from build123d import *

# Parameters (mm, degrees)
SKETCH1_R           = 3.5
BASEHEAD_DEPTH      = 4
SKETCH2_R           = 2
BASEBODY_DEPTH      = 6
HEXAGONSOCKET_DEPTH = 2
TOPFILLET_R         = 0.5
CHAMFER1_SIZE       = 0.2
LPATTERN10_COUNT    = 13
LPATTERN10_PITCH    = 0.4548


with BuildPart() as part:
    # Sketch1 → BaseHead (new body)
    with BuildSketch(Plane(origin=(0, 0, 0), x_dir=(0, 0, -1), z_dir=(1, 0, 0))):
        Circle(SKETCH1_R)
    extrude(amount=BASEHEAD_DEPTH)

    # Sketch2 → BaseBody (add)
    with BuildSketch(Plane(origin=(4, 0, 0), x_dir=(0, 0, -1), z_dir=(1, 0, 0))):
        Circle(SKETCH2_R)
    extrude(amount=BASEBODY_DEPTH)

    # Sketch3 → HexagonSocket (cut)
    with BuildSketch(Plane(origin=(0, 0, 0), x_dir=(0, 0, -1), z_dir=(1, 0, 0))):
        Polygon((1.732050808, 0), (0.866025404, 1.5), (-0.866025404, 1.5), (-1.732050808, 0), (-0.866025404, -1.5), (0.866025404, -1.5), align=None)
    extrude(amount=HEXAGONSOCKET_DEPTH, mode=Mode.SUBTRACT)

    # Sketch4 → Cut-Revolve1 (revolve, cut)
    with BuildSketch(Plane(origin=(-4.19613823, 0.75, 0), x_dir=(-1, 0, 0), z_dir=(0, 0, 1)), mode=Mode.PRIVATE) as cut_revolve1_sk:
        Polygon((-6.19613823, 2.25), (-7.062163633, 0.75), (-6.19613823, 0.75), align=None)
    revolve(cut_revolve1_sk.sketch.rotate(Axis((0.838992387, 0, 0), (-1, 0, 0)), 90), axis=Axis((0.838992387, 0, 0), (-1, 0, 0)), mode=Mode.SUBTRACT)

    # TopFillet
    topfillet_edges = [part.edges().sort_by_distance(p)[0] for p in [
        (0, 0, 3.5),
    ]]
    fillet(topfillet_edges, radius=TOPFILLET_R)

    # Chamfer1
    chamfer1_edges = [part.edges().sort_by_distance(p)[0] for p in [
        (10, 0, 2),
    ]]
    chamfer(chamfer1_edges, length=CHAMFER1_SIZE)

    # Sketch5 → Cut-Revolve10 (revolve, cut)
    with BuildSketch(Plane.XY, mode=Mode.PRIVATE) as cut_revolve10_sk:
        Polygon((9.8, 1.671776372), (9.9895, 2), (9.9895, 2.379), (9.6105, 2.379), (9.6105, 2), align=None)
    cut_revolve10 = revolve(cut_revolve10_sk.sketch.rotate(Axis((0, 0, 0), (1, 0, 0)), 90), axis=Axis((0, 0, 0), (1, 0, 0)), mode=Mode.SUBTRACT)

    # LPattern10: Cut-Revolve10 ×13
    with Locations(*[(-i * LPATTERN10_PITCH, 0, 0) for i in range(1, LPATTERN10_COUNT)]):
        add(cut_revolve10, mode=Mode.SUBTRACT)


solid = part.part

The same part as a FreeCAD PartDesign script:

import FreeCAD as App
import Part
import Sketcher
from FreeCAD import Vector
Q = App.Units.Quantity


def edges_at(feature, points):
    """Names of the edges that pass closest to the given points."""
    edges = feature.Shape.Edges
    near = lambda p: min(range(len(edges)), key=lambda i: edges[i].distToShape(Part.Vertex(*p))[0])
    return sorted({f"Edge{near(p) + 1}" for p in points})

doc = App.newDocument("Part")
body = doc.addObject("PartDesign::Body", "Body")

# Sketch on YZ plane
sketch1 = body.newObject("Sketcher::SketchObject", "Sketch")
sketch1.AttachmentSupport = (doc.getObject("YZ_Plane"), [""])
sketch1.MapMode = "FlatFace"
sketch1.addGeometry(Part.Circle(Vector(0, 0, 0), Vector(0, 0, 1), 3.5), False)
sketch1.addConstraint([
    Sketcher.Constraint("Coincident", 0, 3, -1, 1),
    Sketcher.Constraint("Diameter", 0, 7.0),
])
pad1 = body.newObject("PartDesign::Pad", "Pad")
pad1.Profile = sketch1
pad1.Length = 4

# Sketch on YZ plane
sketch2 = body.newObject("Sketcher::SketchObject", "Sketch001")
sketch2.AttachmentSupport = (doc.getObject("YZ_Plane"), [""])
sketch2.MapMode = "FlatFace"
sketch2.AttachmentOffset = App.Placement(Vector(0, 0, 4), App.Rotation())
sketch2.addGeometry(Part.Circle(Vector(0, 0, 0), Vector(0, 0, 1), 2), False)
sketch2.addConstraint([
    Sketcher.Constraint("Coincident", 0, 3, -1, 1),
    Sketcher.Constraint("Diameter", 0, 4.0),
])
pad2 = body.newObject("PartDesign::Pad", "Pad001")
pad2.Profile = sketch2
pad2.Length = 6

# Sketch on YZ plane
sketch3 = body.newObject("Sketcher::SketchObject", "Sketch002")
sketch3.AttachmentSupport = (doc.getObject("YZ_Plane"), [""])
sketch3.MapMode = "FlatFace"
sketch3.addGeometry([
    Part.LineSegment(Vector(0, -1.7, 0), Vector(1.5, -0.9, 0)),  # 0
    Part.LineSegment(Vector(1.5, -0.9, 0), Vector(1.5, 0.9, 0)),  # 1
    Part.LineSegment(Vector(1.5, 0.9, 0), Vector(0, 1.7, 0)),  # 2
    Part.LineSegment(Vector(0, 1.7, 0), Vector(-1.5, 0.9, 0)),  # 3
    Part.LineSegment(Vector(-1.5, 0.9, 0), Vector(-1.5, -0.9, 0)),  # 4
    Part.LineSegment(Vector(-1.5, -0.9, 0), Vector(0, -1.7, 0)),  # 5
], False)
sketch3.addConstraint([
    Sketcher.Constraint("Coincident", 0, 2, 1, 1),
    Sketcher.Constraint("Coincident", 1, 2, 2, 1),
    Sketcher.Constraint("Coincident", 2, 2, 3, 1),
    Sketcher.Constraint("Coincident", 3, 2, 4, 1),
    Sketcher.Constraint("Coincident", 4, 2, 5, 1),
    Sketcher.Constraint("Coincident", 5, 2, 0, 1),
    Sketcher.Constraint("Vertical", 1),
    Sketcher.Constraint("Vertical", 4),
    Sketcher.Constraint("Symmetric", 0, 2, 3, 2, -1, 1),
    Sketcher.Constraint("Symmetric", 2, 2, 5, 2, -1, 1),
    Sketcher.Constraint("PointOnObject", 2, 2, -2),
    Sketcher.Constraint("Parallel", 2, 5),
    Sketcher.Constraint("Horizontal", 1, 2, 3, 2),
    Sketcher.Constraint("Angle", 0, Q("30 deg")),
    Sketcher.Constraint("DistanceX", 3, 2, 1, 2, 3.0),
    Sketcher.Constraint("DistanceY", 1, 1, 1, 2, 1.732051),
])
pocket1 = body.newObject("PartDesign::Pocket", "Pocket")
pocket1.Profile = sketch3
pocket1.Length = 2
pocket1.Reversed = True

# Sketch on XY plane
sketch4 = body.newObject("Sketcher::SketchObject", "Sketch003")
sketch4.AttachmentSupport = (doc.getObject("XY_Plane"), [""])
sketch4.MapMode = "FlatFace"
sketch4.addGeometry([
    Part.LineSegment(Vector(2, -1.5, 0), Vector(2.9, 0, 0)),
    Part.LineSegment(Vector(2.9, 0, 0), Vector(2, 0, 0)),
    Part.LineSegment(Vector(2, 0, 0), Vector(2, -1.5, 0)),
], False)
sketch4.addConstraint([
    Sketcher.Constraint("Coincident", 0, 2, 1, 1),
    Sketcher.Constraint("Coincident", 1, 2, 2, 1),
    Sketcher.Constraint("Coincident", 2, 2, 0, 1),
    Sketcher.Constraint("Horizontal", 1),
    Sketcher.Constraint("Vertical", 2),
    Sketcher.Constraint("PointOnObject", 0, 2, -1),
    Sketcher.Constraint("Angle", 0, Q("60 deg")),
    Sketcher.Constraint("DistanceY", 2, 2, 2, 1, 1.5),
    Sketcher.Constraint("DistanceX", -1, 1, 1, 2, 2.0),
])
groove = body.newObject("PartDesign::Groove", "Groove")
groove.Profile = sketch4
groove.ReferenceAxis = (sketch4, ["H_Axis"])
groove.Angle = 360
doc.recompute()

fillet = body.newObject("PartDesign::Fillet", "Fillet")
fillet.Base = (groove, edges_at(groove, [(0, 0, 3.5)]))
fillet.Radius = 0.5
doc.recompute()

chamfer = body.newObject("PartDesign::Chamfer", "Chamfer")
chamfer.Base = (fillet, edges_at(fillet, [(10, 0, 2)]))
chamfer.Size = 0.2

# Sketch on XY plane
sketch5 = body.newObject("Sketcher::SketchObject", "Sketch004")
sketch5.AttachmentSupport = (doc.getObject("XY_Plane"), [""])
sketch5.MapMode = "FlatFace"
sketch5.addGeometry([
    Part.LineSegment(Vector(9.8, 1.67, 0), Vector(9.99, 2, 0)),  # 0
    Part.LineSegment(Vector(9.99, 2, 0), Vector(9.99, 2.38, 0)),  # 1
    Part.LineSegment(Vector(9.99, 2.38, 0), Vector(9.61, 2.38, 0)),  # 2
    Part.LineSegment(Vector(9.61, 2.38, 0), Vector(9.61, 2, 0)),  # 3
    Part.LineSegment(Vector(9.61, 2, 0), Vector(9.8, 1.67, 0)),  # 4
], False)
sketch5.addConstraint([
    Sketcher.Constraint("Coincident", 0, 2, 1, 1),
    Sketcher.Constraint("Coincident", 1, 2, 2, 1),
    Sketcher.Constraint("Coincident", 2, 2, 3, 1),
    Sketcher.Constraint("Coincident", 3, 2, 4, 1),
    Sketcher.Constraint("Coincident", 4, 2, 0, 1),
    Sketcher.Constraint("Vertical", 1),
    Sketcher.Constraint("Horizontal", 2),
    Sketcher.Constraint("Vertical", 3),
    Sketcher.Constraint("Horizontal", 0, 2, 3, 2),
    Sketcher.Constraint("Equal", 2, 1),
    Sketcher.Constraint("Equal", 0, 4),
    Sketcher.Constraint("Angle", 0, Q("60 deg")),
    Sketcher.Constraint("DistanceY", -1, 1, 0, 2, 2.0),
    Sketcher.Constraint("DistanceX", -1, 1, 4, 2, 9.8),
    Sketcher.Constraint("DistanceX", 2, 2, 2, 1, 0.379),
])
groove2 = body.newObject("PartDesign::Groove", "Groove001")
groove2.Profile = sketch5
groove2.ReferenceAxis = (sketch5, ["H_Axis"])
groove2.Angle = 360
doc.recompute()

linearpattern = body.newObject("PartDesign::LinearPattern", "LinearPattern")
linearpattern.Originals = [groove2]
linearpattern.Direction = (doc.getObject("X_Axis"), [""])
linearpattern.Mode = "offset"
linearpattern.Offset = 0.4548
linearpattern.Occurrences = 13
linearpattern.Reversed = True
body.Tip = linearpattern

doc.recompute()
